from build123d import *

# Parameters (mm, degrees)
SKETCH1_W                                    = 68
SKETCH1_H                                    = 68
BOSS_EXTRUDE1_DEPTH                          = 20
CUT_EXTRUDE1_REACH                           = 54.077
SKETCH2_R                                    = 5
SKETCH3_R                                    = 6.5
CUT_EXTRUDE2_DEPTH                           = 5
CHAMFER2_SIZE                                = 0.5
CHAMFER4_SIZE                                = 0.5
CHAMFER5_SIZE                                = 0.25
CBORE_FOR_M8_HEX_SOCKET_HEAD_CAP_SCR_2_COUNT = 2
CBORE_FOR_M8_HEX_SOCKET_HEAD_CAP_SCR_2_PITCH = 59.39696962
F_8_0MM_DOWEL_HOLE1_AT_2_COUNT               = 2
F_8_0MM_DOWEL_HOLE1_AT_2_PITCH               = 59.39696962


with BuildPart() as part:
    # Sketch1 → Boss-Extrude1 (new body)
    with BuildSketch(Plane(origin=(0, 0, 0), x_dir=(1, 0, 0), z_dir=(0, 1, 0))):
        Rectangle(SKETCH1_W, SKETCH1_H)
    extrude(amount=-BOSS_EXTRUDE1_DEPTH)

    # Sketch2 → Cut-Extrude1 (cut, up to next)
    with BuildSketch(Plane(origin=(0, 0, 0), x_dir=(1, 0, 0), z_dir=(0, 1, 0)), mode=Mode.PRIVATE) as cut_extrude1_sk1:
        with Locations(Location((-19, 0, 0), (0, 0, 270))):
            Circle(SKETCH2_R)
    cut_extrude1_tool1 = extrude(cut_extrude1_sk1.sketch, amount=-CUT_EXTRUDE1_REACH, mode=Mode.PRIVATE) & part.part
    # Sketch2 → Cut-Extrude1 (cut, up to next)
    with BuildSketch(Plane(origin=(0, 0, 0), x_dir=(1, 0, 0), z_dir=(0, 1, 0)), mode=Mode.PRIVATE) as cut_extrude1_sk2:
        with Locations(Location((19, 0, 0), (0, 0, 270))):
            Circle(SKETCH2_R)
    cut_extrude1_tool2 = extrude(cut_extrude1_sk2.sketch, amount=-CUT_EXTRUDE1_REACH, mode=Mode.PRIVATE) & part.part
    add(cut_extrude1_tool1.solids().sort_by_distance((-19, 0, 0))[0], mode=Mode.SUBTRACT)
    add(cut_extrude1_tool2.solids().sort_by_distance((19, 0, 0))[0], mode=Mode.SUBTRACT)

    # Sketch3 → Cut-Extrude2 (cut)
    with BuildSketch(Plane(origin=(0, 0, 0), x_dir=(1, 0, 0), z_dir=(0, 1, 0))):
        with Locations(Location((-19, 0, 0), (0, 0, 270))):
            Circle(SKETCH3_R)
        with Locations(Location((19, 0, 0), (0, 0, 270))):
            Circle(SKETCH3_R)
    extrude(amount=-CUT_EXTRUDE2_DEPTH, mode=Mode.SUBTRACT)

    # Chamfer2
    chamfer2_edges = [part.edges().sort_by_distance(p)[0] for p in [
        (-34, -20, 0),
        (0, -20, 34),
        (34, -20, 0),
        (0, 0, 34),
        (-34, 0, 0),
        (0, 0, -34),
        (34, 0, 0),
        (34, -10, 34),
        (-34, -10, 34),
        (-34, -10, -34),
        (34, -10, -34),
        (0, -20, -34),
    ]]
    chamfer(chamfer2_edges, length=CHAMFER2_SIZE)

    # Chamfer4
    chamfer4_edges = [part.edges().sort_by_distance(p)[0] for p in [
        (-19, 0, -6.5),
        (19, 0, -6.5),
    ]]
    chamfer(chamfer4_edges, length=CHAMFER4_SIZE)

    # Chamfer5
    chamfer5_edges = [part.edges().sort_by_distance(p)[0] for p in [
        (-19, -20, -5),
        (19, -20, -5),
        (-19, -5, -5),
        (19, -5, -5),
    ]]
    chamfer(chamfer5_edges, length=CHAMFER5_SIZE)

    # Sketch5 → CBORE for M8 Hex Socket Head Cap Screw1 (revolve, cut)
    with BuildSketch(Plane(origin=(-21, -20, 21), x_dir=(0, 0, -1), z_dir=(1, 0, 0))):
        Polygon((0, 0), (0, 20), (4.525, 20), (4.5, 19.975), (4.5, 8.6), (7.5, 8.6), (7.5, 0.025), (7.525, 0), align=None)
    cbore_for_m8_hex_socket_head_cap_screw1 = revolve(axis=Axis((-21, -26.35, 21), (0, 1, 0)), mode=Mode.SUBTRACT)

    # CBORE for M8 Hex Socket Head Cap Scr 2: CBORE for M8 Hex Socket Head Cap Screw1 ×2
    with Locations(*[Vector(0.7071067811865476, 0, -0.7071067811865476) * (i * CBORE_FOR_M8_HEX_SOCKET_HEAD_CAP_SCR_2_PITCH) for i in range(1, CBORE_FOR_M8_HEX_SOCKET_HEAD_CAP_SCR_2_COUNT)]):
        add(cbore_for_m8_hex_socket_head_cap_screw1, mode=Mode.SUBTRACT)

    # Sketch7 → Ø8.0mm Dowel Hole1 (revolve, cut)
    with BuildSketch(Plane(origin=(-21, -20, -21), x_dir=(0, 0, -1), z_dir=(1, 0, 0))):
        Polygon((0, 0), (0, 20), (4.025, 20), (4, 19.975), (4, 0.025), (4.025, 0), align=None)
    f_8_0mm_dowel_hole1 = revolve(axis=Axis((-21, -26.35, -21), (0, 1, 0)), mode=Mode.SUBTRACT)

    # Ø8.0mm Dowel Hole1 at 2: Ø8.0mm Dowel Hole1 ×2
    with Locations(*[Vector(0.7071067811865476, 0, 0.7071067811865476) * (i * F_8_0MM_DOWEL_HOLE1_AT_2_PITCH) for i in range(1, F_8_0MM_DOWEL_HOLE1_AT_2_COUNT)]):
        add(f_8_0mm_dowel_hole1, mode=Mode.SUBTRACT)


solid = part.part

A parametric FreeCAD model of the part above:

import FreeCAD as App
import Part
import Sketcher
from FreeCAD import Vector
Q = App.Units.Quantity


def edges_at(feature, points):
    """Names of the edges that pass closest to the given points."""
    edges = feature.Shape.Edges
    near = lambda p: min(range(len(edges)), key=lambda i: edges[i].distToShape(Part.Vertex(*p))[0])
    return sorted({f"Edge{near(p) + 1}" for p in points})


def add_polygon(sketch, points):
    """Adds a closed chain of lines whose ends are joined by coincident constraints."""
    first, n = sketch.GeometryCount, len(points)
    for a, b in zip(points, points[1:] + points[:1]):
        sketch.addGeometry(Part.LineSegment(App.Vector(*a, 0), App.Vector(*b, 0)), False)
    for i in range(n):
        sketch.addConstraint(Sketcher.Constraint("Coincident", first + i, 2, first + (i + 1) % n, 1))

doc = App.newDocument("Part")
params = doc.addObject("Spreadsheet::Sheet", "Params")
for row, (alias, value) in enumerate([
    ("sketch1_width", "68 mm"),
    ("pad1_length", "20 mm"),
    ("sketch2_diameter", "10 mm"),
    ("sketch3_diameter", "10 mm"),
    ("sketch4_diameter", "13 mm"),
    ("pocket3_length", "5 mm"),
    ("chamfer_size", "0.5 mm"),
    ("chamfer2_size", "0.5 mm"),
    ("chamfer3_size", "0.25 mm"),
    ("sketch5_width", "20 mm"),
    ("sketch5_height", "3 mm"),
    ("groove_angle", "360 deg"),
    ("linearpattern_pitch", "59.39697 mm"),
    ("sketch6_width", "20 mm"),
    ("sketch6_width2", "19.95 mm"),
    ("groove2_angle", "360 deg"),
    ("linearpattern2_pitch", "59.39697 mm"),
], start=1):
    params.set(f"A{row}", alias)
    params.set(f"B{row}", "=" + value)
    params.setAlias(f"B{row}", alias)

body = doc.addObject("PartDesign::Body", "Body")

sketch1 = body.newObject("Sketcher::SketchObject", "Sketch")
sketch1.AttachmentSupport = (doc.getObject("XZ_Plane"), [""])
sketch1.MapMode = "FlatFace"
add_polygon(sketch1, [(-34, -34), (-34, 34), (34, 34), (34, -34)])
sketch1.addConstraint([
    Sketcher.Constraint("Vertical", 0),
    Sketcher.Constraint("Horizontal", 1),
    Sketcher.Constraint("Vertical", 2),
    Sketcher.Constraint("Horizontal", 3),
    Sketcher.Constraint("Symmetric", 0, 2, 2, 2, -1, 1),
    Sketcher.Constraint("Equal", 3, 0),
    Sketcher.Constraint("DistanceX", 1, 1, 1, 2, 68.0),
])
sketch1.setExpression("Constraints[10]", "Params.sketch1_width")
pad1 = body.newObject("PartDesign::Pad", "Pad")
pad1.Profile = sketch1
pad1.setExpression("Length", "Params.pad1_length")

sketch2 = body.newObject("Sketcher::SketchObject", "Sketch001")
sketch2.AttachmentSupport = (doc.getObject("XZ_Plane"), [""])
sketch2.MapMode = "FlatFace"
sketch2.addGeometry(Part.Circle(Vector(-19, 0, 0), Vector(0, 0, 1), 5), False)
sketch2.addConstraint([
    Sketcher.Constraint("PointOnObject", 0, 3, -1),
    Sketcher.Constraint("Diameter", 0, 10.0),
    Sketcher.Constraint("DistanceX", 0, 3, -1, 1, 19.0),
])
sketch2.setExpression("Constraints[1]", "Params.sketch2_diameter")
pocket1 = body.newObject("PartDesign::Pocket", "Pocket")
pocket1.Profile = sketch2
pocket1.Type = "UpToFirst"
pocket1.Reversed = True

sketch3 = body.newObject("Sketcher::SketchObject", "Sketch002")
sketch3.AttachmentSupport = (doc.getObject("XZ_Plane"), [""])
sketch3.MapMode = "FlatFace"
sketch3.addGeometry(Part.Circle(Vector(19, 0, 0), Vector(0, 0, 1), 5), False)
sketch3.addConstraint([
    Sketcher.Constraint("PointOnObject", 0, 3, -1),
    Sketcher.Constraint("Diameter", 0, 10.0),
    Sketcher.Constraint("DistanceX", -1, 1, 0, 3, 19.0),
])
sketch3.setExpression("Constraints[1]", "Params.sketch3_diameter")
pocket2 = body.newObject("PartDesign::Pocket", "Pocket001")
pocket2.Profile = sketch3
pocket2.Type = "UpToFirst"
pocket2.Reversed = True

sketch4 = body.newObject("Sketcher::SketchObject", "Sketch003")
sketch4.AttachmentSupport = (doc.getObject("XZ_Plane"), [""])
sketch4.MapMode = "FlatFace"
sketch4.addGeometry([
    Part.Circle(Vector(-19, 0, 0), Vector(0, 0, 1), 6),
    Part.Circle(Vector(19, 0, 0), Vector(0, 0, 1), 6),
], False)
sketch4.addConstraint([
    Sketcher.Constraint("Equal", 0, 1),
    Sketcher.Constraint("Symmetric", 0, 3, 1, 3, -1, 1),
    Sketcher.Constraint("PointOnObject", 0, 3, -1),
    Sketcher.Constraint("Diameter", 0, 13.0),
    Sketcher.Constraint("DistanceX", 0, 3, -1, 1, 19.0),
])
sketch4.setExpression("Constraints[3]", "Params.sketch4_diameter")
pocket3 = body.newObject("PartDesign::Pocket", "Pocket002")
pocket3.Profile = sketch4
pocket3.setExpression("Length", "Params.pocket3_length")
pocket3.Reversed = True
doc.recompute()

chamfer = body.newObject("PartDesign::Chamfer", "Chamfer")
chamfer.Base = (pocket3, edges_at(pocket3, [
    (-34, -20, 0),
    (0, -20, 34),
    (34, -20, 0),
    (0, 0, 34),
    (-34, 0, 0),
    (0, 0, -34),
    (34, 0, 0),
    (34, -10, 34),
    (-34, -10, 34),
    (-34, -10, -34),
    (34, -10, -34),
    (0, -20, -34),
]))
chamfer.setExpression("Size", "Params.chamfer_size")
doc.recompute()

chamfer2 = body.newObject("PartDesign::Chamfer", "Chamfer001")
chamfer2.Base = (chamfer, edges_at(chamfer, [(-19, 0, -6.5), (19, 0, -6.5)]))
chamfer2.setExpression("Size", "Params.chamfer2_size")
doc.recompute()

chamfer3 = body.newObject("PartDesign::Chamfer", "Chamfer002")
chamfer3.Base = (chamfer2, edges_at(chamfer2, [
    (-19, -20, -5),
    (19, -20, -5),
    (-19, -5, -5),
    (19, -5, -5),
]))
chamfer3.setExpression("Size", "Params.chamfer3_size")

sketch5 = body.newObject("Sketcher::SketchObject", "Sketch004")
sketch5.AttachmentSupport = (doc.getObject("YZ_Plane"), [""])
sketch5.MapMode = "FlatFace"
sketch5.AttachmentOffset = App.Placement(Vector(0, 0, -21), App.Rotation())
add_polygon(sketch5, [(0, 21), (-20, 21), (-20, 13.475), (-19.975, 13.5), (-11.4, 13.5), (-11.4, 16.5), (-0.025, 16.5), (0, 16.475)])
sketch5.addGeometry(Part.LineSegment(Vector(-20, 21, 0), Vector(0, 21, 0)), True)
sketch5.addConstraint([
    Sketcher.Constraint("Horizontal", 0),
    Sketcher.Constraint("Vertical", 1),
    Sketcher.Constraint("Horizontal", 3),
    Sketcher.Constraint("Vertical", 4),
    Sketcher.Constraint("Horizontal", 5),
    Sketcher.Constraint("Vertical", 7),
    Sketcher.Constraint("Horizontal", 8),
    Sketcher.Constraint("Coincident", 8, 1, 0, 2),
    Sketcher.Constraint("PointOnObject", 6, 2, -2),
    Sketcher.Constraint("PointOnObject", 8, 2, -2),
    Sketcher.Constraint("Perpendicular", 2, 6),
    Sketcher.Constraint("Equal", 2, 6),
    Sketcher.Constraint("DistanceX", 0, 2, 0, 1, 20.0),
    Sketcher.Constraint("DistanceY", 4, 1, 4, 2, 3.0),
    Sketcher.Constraint("Angle", 2, Q("45 deg")),
    Sketcher.Constraint("DistanceY", -1, 1, 0, 2, 21.0),
    Sketcher.Constraint("DistanceY", -1, 1, 2, 2, 13.5),
    Sketcher.Constraint("DistanceX", 3, 2, -1, 1, 11.4),
    Sketcher.Constraint("DistanceX", 3, 1, 3, 2, 8.575),
])
sketch5.setExpression("Constraints[20]", "Params.sketch5_width")
sketch5.setExpression("Constraints[21]", "Params.sketch5_height")
groove = body.newObject("PartDesign::Groove", "Groove")
groove.Profile = sketch5
groove.ReferenceAxis = (sketch5, ["Axis0"])
groove.setExpression("Angle", "Params.groove_angle")
doc.recompute()

datumline = body.newObject("PartDesign::Line", "DatumLine")
datumline.Placement = App.Placement(Vector(0, 0, 0), App.Rotation(Vector(0, 0, 1), Vector(0.707106781, 0, -0.707106781)))
linearpattern = body.newObject("PartDesign::LinearPattern", "LinearPattern")
linearpattern.Originals = [groove]
linearpattern.Direction = (datumline, [""])
linearpattern.Mode = "offset"
linearpattern.setExpression("Offset", "Params.linearpattern_pitch")
linearpattern.Occurrences = 2
body.Tip = linearpattern

sketch6 = body.newObject("Sketcher::SketchObject", "Sketch005")
sketch6.AttachmentSupport = (doc.getObject("YZ_Plane"), [""])
sketch6.MapMode = "FlatFace"
sketch6.AttachmentOffset = App.Placement(Vector(0, 0, -21), App.Rotation())
add_polygon(sketch6, [(0, -21), (-20, -21), (-20, -25.025), (-19.975, -25), (-0.025, -25), (0, -25.025)])
sketch6.addGeometry(Part.LineSegment(Vector(-20, -21, 0), Vector(0, -21, 0)), True)
sketch6.addConstraint([
    Sketcher.Constraint("Horizontal", 0),
    Sketcher.Constraint("Vertical", 1),
    Sketcher.Constraint("Horizontal", 3),
    Sketcher.Constraint("Vertical", 5),
    Sketcher.Constraint("Horizontal", 6),
    Sketcher.Constraint("Coincident", 6, 1, 0, 2),
    Sketcher.Constraint("PointOnObject", 4, 2, -2),
    Sketcher.Constraint("PointOnObject", 6, 2, -2),
    Sketcher.Constraint("Perpendicular", 2, 4),
    Sketcher.Constraint("Horizontal", 1, 2, 4, 2),
    Sketcher.Constraint("Equal", 2, 4),
    Sketcher.Constraint("DistanceX", 0, 2, 0, 1, 20.0),
    Sketcher.Constraint("DistanceY", 0, 2, -1, 1, 21.0),
    Sketcher.Constraint("DistanceY", 2, 2, -1, 1, 25.0),
    Sketcher.Constraint("DistanceX", 3, 1, 3, 2, 19.95),
])
sketch6.setExpression("Constraints[17]", "Params.sketch6_width")
sketch6.setExpression("Constraints[20]", "Params.sketch6_width2")
groove2 = body.newObject("PartDesign::Groove", "Groove001")
groove2.Profile = sketch6
groove2.ReferenceAxis = (sketch6, ["Axis0"])
groove2.setExpression("Angle", "Params.groove2_angle")
doc.recompute()

datumline2 = body.newObject("PartDesign::Line", "DatumLine001")
datumline2.Placement = App.Placement(Vector(0, 0, 0), App.Rotation(Vector(0, 0, 1), Vector(0.707106781, 0, 0.707106781)))
linearpattern2 = body.newObject("PartDesign::LinearPattern", "LinearPattern001")
linearpattern2.Originals = [groove2]
linearpattern2.Direction = (datumline2, [""])
linearpattern2.Mode = "offset"
linearpattern2.setExpression("Offset", "Params.linearpattern2_pitch")
linearpattern2.Occurrences = 2
body.Tip = linearpattern2

doc.recompute()
